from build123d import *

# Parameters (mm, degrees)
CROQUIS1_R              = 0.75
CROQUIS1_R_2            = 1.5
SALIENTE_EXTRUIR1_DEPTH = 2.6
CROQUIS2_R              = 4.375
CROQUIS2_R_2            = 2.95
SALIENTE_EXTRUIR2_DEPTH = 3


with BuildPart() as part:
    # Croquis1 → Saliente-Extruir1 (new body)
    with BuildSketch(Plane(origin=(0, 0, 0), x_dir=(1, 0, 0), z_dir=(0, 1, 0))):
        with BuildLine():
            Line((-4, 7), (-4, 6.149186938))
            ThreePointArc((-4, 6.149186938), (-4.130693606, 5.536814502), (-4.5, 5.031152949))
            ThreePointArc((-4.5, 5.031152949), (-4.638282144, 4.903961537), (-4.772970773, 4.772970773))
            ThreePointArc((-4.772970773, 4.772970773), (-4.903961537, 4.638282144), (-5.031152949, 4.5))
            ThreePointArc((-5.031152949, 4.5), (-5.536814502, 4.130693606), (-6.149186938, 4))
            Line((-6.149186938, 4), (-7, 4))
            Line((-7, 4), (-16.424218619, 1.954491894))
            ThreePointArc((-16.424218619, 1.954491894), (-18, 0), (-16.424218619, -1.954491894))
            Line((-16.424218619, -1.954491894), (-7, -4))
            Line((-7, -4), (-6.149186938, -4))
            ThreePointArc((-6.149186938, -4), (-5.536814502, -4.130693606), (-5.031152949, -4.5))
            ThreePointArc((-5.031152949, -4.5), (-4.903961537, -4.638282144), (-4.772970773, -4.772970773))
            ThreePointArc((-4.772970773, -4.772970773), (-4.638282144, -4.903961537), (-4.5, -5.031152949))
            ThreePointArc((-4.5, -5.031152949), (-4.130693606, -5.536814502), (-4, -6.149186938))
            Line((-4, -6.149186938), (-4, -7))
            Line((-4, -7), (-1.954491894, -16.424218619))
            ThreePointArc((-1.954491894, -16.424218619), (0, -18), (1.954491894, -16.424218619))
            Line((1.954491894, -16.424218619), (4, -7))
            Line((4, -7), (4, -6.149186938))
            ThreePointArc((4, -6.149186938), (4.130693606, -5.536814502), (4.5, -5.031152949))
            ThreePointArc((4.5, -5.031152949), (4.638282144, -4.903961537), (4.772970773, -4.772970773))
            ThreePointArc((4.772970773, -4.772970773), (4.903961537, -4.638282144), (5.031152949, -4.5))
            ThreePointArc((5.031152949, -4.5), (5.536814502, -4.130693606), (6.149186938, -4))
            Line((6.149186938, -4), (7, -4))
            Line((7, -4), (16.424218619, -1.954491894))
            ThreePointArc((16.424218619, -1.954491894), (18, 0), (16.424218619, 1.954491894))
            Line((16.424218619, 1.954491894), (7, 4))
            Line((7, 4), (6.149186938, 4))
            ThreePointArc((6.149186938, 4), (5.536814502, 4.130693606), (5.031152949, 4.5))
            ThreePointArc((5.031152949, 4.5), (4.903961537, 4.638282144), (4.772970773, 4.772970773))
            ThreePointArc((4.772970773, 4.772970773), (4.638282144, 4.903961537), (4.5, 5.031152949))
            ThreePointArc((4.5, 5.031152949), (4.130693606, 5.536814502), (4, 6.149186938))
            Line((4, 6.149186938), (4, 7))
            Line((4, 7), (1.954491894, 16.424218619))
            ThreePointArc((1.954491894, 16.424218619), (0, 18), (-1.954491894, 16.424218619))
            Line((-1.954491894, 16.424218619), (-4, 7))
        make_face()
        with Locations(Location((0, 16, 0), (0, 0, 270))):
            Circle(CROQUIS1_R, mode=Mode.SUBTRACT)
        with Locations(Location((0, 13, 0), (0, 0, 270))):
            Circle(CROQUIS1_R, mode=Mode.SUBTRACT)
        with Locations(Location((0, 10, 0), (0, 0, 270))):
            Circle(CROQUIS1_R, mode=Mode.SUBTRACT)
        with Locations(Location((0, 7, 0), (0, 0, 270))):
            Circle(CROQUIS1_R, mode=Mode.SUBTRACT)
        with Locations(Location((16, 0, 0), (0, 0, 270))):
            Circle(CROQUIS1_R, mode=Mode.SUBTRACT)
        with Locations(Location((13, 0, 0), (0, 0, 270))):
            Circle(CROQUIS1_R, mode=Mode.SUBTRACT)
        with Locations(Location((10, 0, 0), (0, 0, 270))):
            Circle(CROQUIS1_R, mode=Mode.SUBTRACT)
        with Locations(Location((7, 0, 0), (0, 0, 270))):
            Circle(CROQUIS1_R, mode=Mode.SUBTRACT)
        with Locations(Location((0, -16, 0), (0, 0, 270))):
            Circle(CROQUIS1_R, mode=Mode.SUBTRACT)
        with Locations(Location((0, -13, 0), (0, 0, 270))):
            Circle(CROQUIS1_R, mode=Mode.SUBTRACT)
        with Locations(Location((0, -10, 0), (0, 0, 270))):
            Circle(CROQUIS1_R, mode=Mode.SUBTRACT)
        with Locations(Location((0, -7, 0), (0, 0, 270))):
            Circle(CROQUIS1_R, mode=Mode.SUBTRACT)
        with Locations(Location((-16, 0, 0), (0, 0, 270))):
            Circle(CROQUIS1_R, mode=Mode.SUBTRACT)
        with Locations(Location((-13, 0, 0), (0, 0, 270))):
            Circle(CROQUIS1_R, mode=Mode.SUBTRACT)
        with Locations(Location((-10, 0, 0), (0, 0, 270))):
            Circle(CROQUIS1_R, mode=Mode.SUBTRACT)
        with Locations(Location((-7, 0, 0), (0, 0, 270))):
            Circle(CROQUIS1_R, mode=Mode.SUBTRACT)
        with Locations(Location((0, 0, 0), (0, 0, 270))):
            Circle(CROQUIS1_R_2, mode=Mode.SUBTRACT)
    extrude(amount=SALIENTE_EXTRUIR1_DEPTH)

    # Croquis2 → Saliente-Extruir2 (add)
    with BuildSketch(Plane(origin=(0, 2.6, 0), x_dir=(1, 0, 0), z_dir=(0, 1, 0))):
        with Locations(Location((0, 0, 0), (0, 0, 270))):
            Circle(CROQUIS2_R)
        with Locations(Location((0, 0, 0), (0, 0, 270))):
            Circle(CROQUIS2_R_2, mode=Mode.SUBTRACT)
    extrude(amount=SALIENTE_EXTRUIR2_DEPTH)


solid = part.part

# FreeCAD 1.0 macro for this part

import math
import FreeCAD as App
import Part
import Sketcher

V = App.Vector
Q = App.Units.Quantity

doc = App.newDocument("Part")
body = doc.addObject("PartDesign::Body", "Body")

# Sketch on XZ plane
sketch1 = body.newObject("Sketcher::SketchObject", "Sketch")
sketch1.AttachmentSupport = (doc.getObject("XZ_Plane"), [""])
sketch1.MapMode = "FlatFace"
sketch1.addGeometry(Part.LineSegment(V(-4, -7, 0), V(-4, -6.15, 0)), False)
sketch1.addGeometry(Part.ArcOfCircle(Part.Circle(V(-5.5, -6.15, 0), V(0, 0, 1), 1.5), math.radians(0), math.radians(48)), False)
sketch1.addGeometry(Part.ArcOfCircle(Part.Circle(V(0, 0, 0), V(0, 0, 1), 6.75), math.radians(-135), math.radians(-131.81)), False)
sketch1.addGeometry(Part.ArcOfCircle(Part.Circle(V(0, 0, 0), V(0, 0, 1), 6.75), math.radians(-138.19), math.radians(-135)), False)
sketch1.addGeometry(Part.ArcOfCircle(Part.Circle(V(-6.15, -5.5, 0), V(0, 0, 1), 1.5), math.radians(42), math.radians(90)), False)
sketch1.addGeometry(Part.LineSegment(V(-6.15, -4, 0), V(-7, -4, 0)), False)
sketch1.addGeometry(Part.LineSegment(V(-7, -4, 0), V(-16.42, -1.95, 0)), False)
sketch1.addGeometry(Part.ArcOfCircle(Part.Circle(V(-16, 0, 0), V(0, 0, 1), 2), math.radians(102), math.radians(258)), False)
sketch1.addGeometry(Part.LineSegment(V(-16.42, 1.95, 0), V(-7, 4, 0)), False)
sketch1.addGeometry(Part.LineSegment(V(-7, 4, 0), V(-6.15, 4, 0)), False)
sketch1.addGeometry(Part.ArcOfCircle(Part.Circle(V(-6.15, 5.5, 0), V(0, 0, 1), 1.5), math.radians(-90), math.radians(-42)), False)
sketch1.addGeometry(Part.ArcOfCircle(Part.Circle(V(0, 0, 0), V(0, 0, 1), 6.75), math.radians(135), math.radians(138.19)), False)
sketch1.addGeometry(Part.ArcOfCircle(Part.Circle(V(0, 0, 0), V(0, 0, 1), 6.75), math.radians(131.81), math.radians(135)), False)
sketch1.addGeometry(Part.ArcOfCircle(Part.Circle(V(-5.5, 6.15, 0), V(0, 0, 1), 1.5), math.radians(-48), math.radians(0)), False)
sketch1.addGeometry(Part.LineSegment(V(-4, 6.15, 0), V(-4, 7, 0)), False)
sketch1.addGeometry(Part.LineSegment(V(-4, 7, 0), V(-1.95, 16.42, 0)), False)
sketch1.addGeometry(Part.ArcOfCircle(Part.Circle(V(0, 16, 0), V(0, 0, 1), 2), math.radians(12), math.radians(168)), False)
sketch1.addGeometry(Part.LineSegment(V(1.95, 16.42, 0), V(4, 7, 0)), False)
sketch1.addGeometry(Part.LineSegment(V(4, 7, 0), V(4, 6.15, 0)), False)
sketch1.addGeometry(Part.ArcOfCircle(Part.Circle(V(5.5, 6.15, 0), V(0, 0, 1), 1.5), math.radians(180), math.radians(228)), False)
sketch1.addGeometry(Part.ArcOfCircle(Part.Circle(V(0, 0, 0), V(0, 0, 1), 6.75), math.radians(45), math.radians(48.19)), False)
sketch1.addGeometry(Part.ArcOfCircle(Part.Circle(V(0, 0, 0), V(0, 0, 1), 6.75), math.radians(41.81), math.radians(45)), False)
sketch1.addGeometry(Part.ArcOfCircle(Part.Circle(V(6.15, 5.5, 0), V(0, 0, 1), 1.5), math.radians(-138), math.radians(-90)), False)
sketch1.addGeometry(Part.LineSegment(V(6.15, 4, 0), V(7, 4, 0)), False)
sketch1.addGeometry(Part.LineSegment(V(7, 4, 0), V(16.42, 1.95, 0)), False)
sketch1.addGeometry(Part.ArcOfCircle(Part.Circle(V(16, 0, 0), V(0, 0, 1), 2), math.radians(-78), math.radians(78)), False)
sketch1.addGeometry(Part.LineSegment(V(16.42, -1.95, 0), V(7, -4, 0)), False)
sketch1.addGeometry(Part.LineSegment(V(7, -4, 0), V(6.15, -4, 0)), False)
sketch1.addGeometry(Part.ArcOfCircle(Part.Circle(V(6.15, -5.5, 0), V(0, 0, 1), 1.5), math.radians(90), math.radians(138)), False)
sketch1.addGeometry(Part.ArcOfCircle(Part.Circle(V(0, 0, 0), V(0, 0, 1), 6.75), math.radians(-45), math.radians(-41.81)), False)
sketch1.addGeometry(Part.ArcOfCircle(Part.Circle(V(0, 0, 0), V(0, 0, 1), 6.75), math.radians(-48.19), math.radians(-45)), False)
sketch1.addGeometry(Part.ArcOfCircle(Part.Circle(V(5.5, -6.15, 0), V(0, 0, 1), 1.5), math.radians(132), math.radians(180)), False)
sketch1.addGeometry(Part.LineSegment(V(4, -6.15, 0), V(4, -7, 0)), False)
sketch1.addGeometry(Part.LineSegment(V(4, -7, 0), V(1.95, -16.42, 0)), False)
sketch1.addGeometry(Part.ArcOfCircle(Part.Circle(V(0, -16, 0), V(0, 0, 1), 2), math.radians(-168), math.radians(-12)), False)
sketch1.addGeometry(Part.LineSegment(V(-1.95, -16.42, 0), V(-4, -7, 0)), False)
sketch1.addGeometry(Part.Circle(V(0, 16, 0), V(0, 0, 1), 0.75), False)
sketch1.addGeometry(Part.Circle(V(0, 13, 0), V(0, 0, 1), 0.75), False)
sketch1.addGeometry(Part.Circle(V(0, 10, 0), V(0, 0, 1), 0.75), False)
sketch1.addGeometry(Part.Circle(V(0, 7, 0), V(0, 0, 1), 0.75), False)
sketch1.addGeometry(Part.Circle(V(-16, 0, 0), V(0, 0, 1), 0.75), False)
sketch1.addGeometry(Part.Circle(V(-13, 0, 0), V(0, 0, 1), 0.75), False)
sketch1.addGeometry(Part.Circle(V(-10, 0, 0), V(0, 0, 1), 0.75), False)
sketch1.addGeometry(Part.Circle(V(-7, 0, 0), V(0, 0, 1), 0.75), False)
sketch1.addGeometry(Part.Circle(V(0, 0, 0), V(0, 0, 1), 1.5), False)
sketch1.addGeometry(Part.Circle(V(7, 0, 0), V(0, 0, 1), 0.75), False)
sketch1.addGeometry(Part.Circle(V(0, -7, 0), V(0, 0, 1), 0.75), False)
sketch1.addGeometry(Part.Circle(V(10, 0, 0), V(0, 0, 1), 0.75), False)
sketch1.addGeometry(Part.Circle(V(13, 0, 0), V(0, 0, 1), 0.75), False)
sketch1.addGeometry(Part.Circle(V(16, 0, 0), V(0, 0, 1), 0.75), False)
sketch1.addGeometry(Part.Circle(V(0, -10, 0), V(0, 0, 1), 0.75), False)
sketch1.addGeometry(Part.Circle(V(0, -13, 0), V(0, 0, 1), 0.75), False)
sketch1.addGeometry(Part.Circle(V(0, -16, 0), V(0, 0, 1), 0.75), False)
sketch1.addConstraint(Sketcher.Constraint("Tangent", 0, 2, 1, 1))
sketch1.addConstraint(Sketcher.Constraint("Tangent", 1, 2, 2, 2))
sketch1.addConstraint(Sketcher.Constraint("Tangent", 2, 1, 3, 2))
sketch1.addConstraint(Sketcher.Constraint("Tangent", 3, 1, 4, 1))
sketch1.addConstraint(Sketcher.Constraint("Tangent", 4, 2, 5, 1))
sketch1.addConstraint(Sketcher.Constraint("Coincident", 5, 2, 6, 1))
sketch1.addConstraint(Sketcher.Constraint("Tangent", 6, 2, 7, 2))
sketch1.addConstraint(Sketcher.Constraint("Tangent", 7, 1, 8, 1))
sketch1.addConstraint(Sketcher.Constraint("Coincident", 8, 2, 9, 1))
sketch1.addConstraint(Sketcher.Constraint("Tangent", 9, 2, 10, 1))
sketch1.addConstraint(Sketcher.Constraint("Tangent", 10, 2, 11, 2))
sketch1.addConstraint(Sketcher.Constraint("Tangent", 11, 1, 12, 2))
sketch1.addConstraint(Sketcher.Constraint("Tangent", 12, 1, 13, 1))
sketch1.addConstraint(Sketcher.Constraint("Tangent", 13, 2, 14, 1))
sketch1.addConstraint(Sketcher.Constraint("Coincident", 14, 2, 15, 1))
sketch1.addConstraint(Sketcher.Constraint("Tangent", 15, 2, 16, 2))
sketch1.addConstraint(Sketcher.Constraint("Tangent", 16, 1, 17, 1))
sketch1.addConstraint(Sketcher.Constraint("Coincident", 17, 2, 18, 1))
sketch1.addConstraint(Sketcher.Constraint("Tangent", 18, 2, 19, 1))
sketch1.addConstraint(Sketcher.Constraint("Tangent", 19, 2, 20, 2))
sketch1.addConstraint(Sketcher.Constraint("Tangent", 20, 1, 21, 2))
sketch1.addConstraint(Sketcher.Constraint("Tangent", 21, 1, 22, 1))
sketch1.addConstraint(Sketcher.Constraint("Tangent", 22, 2, 23, 1))
sketch1.addConstraint(Sketcher.Constraint("Coincident", 23, 2, 24, 1))
sketch1.addConstraint(Sketcher.Constraint("Tangent", 24, 2, 25, 2))
sketch1.addConstraint(Sketcher.Constraint("Tangent", 25, 1, 26, 1))
sketch1.addConstraint(Sketcher.Constraint("Coincident", 26, 2, 27, 1))
sketch1.addConstraint(Sketcher.Constraint("Tangent", 27, 2, 28, 1))
sketch1.addConstraint(Sketcher.Constraint("Tangent", 28, 2, 29, 2))
sketch1.addConstraint(Sketcher.Constraint("Tangent", 29, 1, 30, 2))
sketch1.addConstraint(Sketcher.Constraint("Tangent", 30, 1, 31, 1))
sketch1.addConstraint(Sketcher.Constraint("Tangent", 31, 2, 32, 1))
sketch1.addConstraint(Sketcher.Constraint("Coincident", 32, 2, 33, 1))
sketch1.addConstraint(Sketcher.Constraint("Tangent", 33, 2, 34, 2))
sketch1.addConstraint(Sketcher.Constraint("Tangent", 34, 1, 35, 1))
sketch1.addConstraint(Sketcher.Constraint("Coincident", 35, 2, 0, 1))
sketch1.addConstraint(Sketcher.Constraint("Vertical", 0))
sketch1.addConstraint(Sketcher.Constraint("Horizontal", 5))
sketch1.addConstraint(Sketcher.Constraint("Horizontal", 9))
sketch1.addConstraint(Sketcher.Constraint("Vertical", 14))
sketch1.addConstraint(Sketcher.Constraint("Vertical", 18))
sketch1.addConstraint(Sketcher.Constraint("Horizontal", 23))
sketch1.addConstraint(Sketcher.Constraint("Horizontal", 27))
sketch1.addConstraint(Sketcher.Constraint("Vertical", 32))
sketch1.addConstraint(Sketcher.Constraint("Coincident", 2, 3, -1, 1))
sketch1.addConstraint(Sketcher.Constraint("Coincident", 11, 3, -1, 1))
sketch1.addConstraint(Sketcher.Constraint("Coincident", 20, 3, -1, 1))
sketch1.addConstraint(Sketcher.Constraint("Coincident", 29, 3, -1, 1))
sketch1.addConstraint(Sketcher.Constraint("Coincident", 44, 3, -1, 1))
sketch1.addConstraint(Sketcher.Constraint("Coincident", 36, 3, 16, 3))
sketch1.addConstraint(Sketcher.Constraint("Coincident", 40, 3, 7, 3))
sketch1.addConstraint(Sketcher.Constraint("Coincident", 49, 3, 25, 3))
sketch1.addConstraint(Sketcher.Constraint("Coincident", 52, 3, 34, 3))
sketch1.addConstraint(Sketcher.Constraint("Equal", 2, 3))
sketch1.addConstraint(Sketcher.Constraint("Equal", 1, 4))
sketch1.addConstraint(Sketcher.Constraint("Equal", 4, 10))
sketch1.addConstraint(Sketcher.Constraint("Equal", 3, 11))
sketch1.addConstraint(Sketcher.Constraint("Equal", 11, 12))
sketch1.addConstraint(Sketcher.Constraint("Equal", 10, 13))
sketch1.addConstraint(Sketcher.Constraint("Equal", 7, 16))
sketch1.addConstraint(Sketcher.Constraint("Equal", 13, 19))
sketch1.addConstraint(Sketcher.Constraint("Equal", 12, 20))
sketch1.addConstraint(Sketcher.Constraint("Equal", 20, 21))
sketch1.addConstraint(Sketcher.Constraint("Equal", 19, 22))
sketch1.addConstraint(Sketcher.Constraint("Equal", 16, 25))
sketch1.addConstraint(Sketcher.Constraint("Equal", 22, 28))
sketch1.addConstraint(Sketcher.Constraint("Equal", 21, 29))
sketch1.addConstraint(Sketcher.Constraint("Equal", 29, 30))
sketch1.addConstraint(Sketcher.Constraint("Equal", 28, 31))
sketch1.addConstraint(Sketcher.Constraint("Equal", 25, 34))
sketch1.addConstraint(Sketcher.Constraint("Equal", 36, 37))
sketch1.addConstraint(Sketcher.Constraint("Equal", 37, 38))
sketch1.addConstraint(Sketcher.Constraint("Equal", 38, 39))
sketch1.addConstraint(Sketcher.Constraint("Equal", 39, 40))
sketch1.addConstraint(Sketcher.Constraint("Equal", 40, 41))
sketch1.addConstraint(Sketcher.Constraint("Equal", 41, 42))
sketch1.addConstraint(Sketcher.Constraint("Equal", 42, 43))
sketch1.addConstraint(Sketcher.Constraint("Equal", 31, 44))
sketch1.addConstraint(Sketcher.Constraint("Equal", 43, 45))
sketch1.addConstraint(Sketcher.Constraint("Equal", 45, 46))
sketch1.addConstraint(Sketcher.Constraint("Equal", 46, 47))
sketch1.addConstraint(Sketcher.Constraint("Equal", 47, 48))
sketch1.addConstraint(Sketcher.Constraint("Equal", 48, 49))
sketch1.addConstraint(Sketcher.Constraint("Equal", 49, 50))
sketch1.addConstraint(Sketcher.Constraint("Equal", 50, 51))
sketch1.addConstraint(Sketcher.Constraint("Equal", 51, 52))
sketch1.addConstraint(Sketcher.Constraint("Symmetric", 7, 3, 25, 3, -1, 1))
sketch1.addConstraint(Sketcher.Constraint("Symmetric", 16, 3, 34, 3, -1, 1))
sketch1.addConstraint(Sketcher.Constraint("Symmetric", 43, 3, 45, 3, -1, 1))
sketch1.addConstraint(Sketcher.Constraint("Symmetric", 39, 3, 46, 3, -1, 1))
sketch1.addConstraint(Sketcher.Constraint("Symmetric", 42, 3, 47, 3, -1, 1))
sketch1.addConstraint(Sketcher.Constraint("Symmetric", 41, 3, 48, 3, -1, 1))
sketch1.addConstraint(Sketcher.Constraint("Symmetric", 38, 3, 50, 3, -1, 1))
sketch1.addConstraint(Sketcher.Constraint("Symmetric", 37, 3, 51, 3, -1, 1))
sketch1.addConstraint(Sketcher.Constraint("Symmetric", 5, 2, 23, 2, -1, 1))
sketch1.addConstraint(Sketcher.Constraint("Symmetric", 8, 2, 26, 2, -1, 1))
sketch1.addConstraint(Sketcher.Constraint("Symmetric", 14, 2, 32, 2, -1, 1))
sketch1.addConstraint(Sketcher.Constraint("Symmetric", 17, 2, 35, 2, -1, 1))
sketch1.addConstraint(Sketcher.Constraint("Symmetric", 15, 2, 16, 1, -2))
sketch1.addConstraint(Sketcher.Constraint("Symmetric", 8, 2, 23, 2, -2))
sketch1.addConstraint(Sketcher.Constraint("PointOnObject", 7, 3, -1))
sketch1.addConstraint(Sketcher.Constraint("PointOnObject", 37, 3, -2))
sketch1.addConstraint(Sketcher.Constraint("PointOnObject", 38, 3, -2))
sketch1.addConstraint(Sketcher.Constraint("PointOnObject", 39, 3, -2))
sketch1.addConstraint(Sketcher.Constraint("PointOnObject", 41, 3, -1))
sketch1.addConstraint(Sketcher.Constraint("PointOnObject", 42, 3, -1))
sketch1.addConstraint(Sketcher.Constraint("PointOnObject", 43, 3, -1))
sketch1.addConstraint(Sketcher.Constraint("Perpendicular", 6, 15))
sketch1.addConstraint(Sketcher.Constraint("Horizontal", 13, 3, 19, 3))
sketch1.addConstraint(Sketcher.Constraint("Horizontal", 39, 3, 14, 2))
sketch1.addConstraint(Sketcher.Constraint("Horizontal", 11, 1, 20, 1))
sketch1.addConstraint(Sketcher.Constraint("Horizontal", 2, 1, 29, 1))
sketch1.addConstraint(Sketcher.Constraint("Vertical", 43, 3, 5, 2))
sketch1.addConstraint(Sketcher.Constraint("Vertical", 2, 1, 11, 1))
sketch1.addConstraint(Sketcher.Constraint("Equal", 27, 0))
sketch1.addConstraint(Sketcher.Constraint("Equal", 8, 15))
sketch1.addConstraint(Sketcher.Constraint("Diameter", 44, Q("3 mm")))
sketch1.addConstraint(Sketcher.Constraint("Radius", 7, Q("2 mm")))
sketch1.addConstraint(Sketcher.Constraint("Diameter", 36, Q("1.5 mm")))
sketch1.addConstraint(Sketcher.Constraint("Radius", 2, Q("6.749999 mm")))
sketch1.addConstraint(Sketcher.Constraint("DistanceX", 7, 3, -1, 1, Q("16 mm")))
sketch1.addConstraint(Sketcher.Constraint("DistanceY", -1, 1, 37, 3, Q("13 mm")))
sketch1.addConstraint(Sketcher.Constraint("DistanceY", -1, 1, 38, 3, Q("10 mm")))
sketch1.addConstraint(Sketcher.Constraint("DistanceY", -1, 1, 39, 3, Q("7 mm")))
sketch1.addConstraint(Sketcher.Constraint("DistanceX", 41, 3, -1, 1, Q("13 mm")))
sketch1.addConstraint(Sketcher.Constraint("DistanceX", 42, 3, -1, 1, Q("10 mm")))
sketch1.addConstraint(Sketcher.Constraint("DistanceX", 0, 2, -1, 1, Q("4 mm")))
sketch1.addConstraint(Sketcher.Constraint("DistanceX", 2, 1, -1, 1, Q("4.772971 mm")))
pad1 = body.newObject("PartDesign::Pad", "Pad")
pad1.Profile = sketch1
pad1.Length = 2.6
pad1.Reversed = True

# Sketch on XZ plane
sketch2 = body.newObject("Sketcher::SketchObject", "Sketch001")
sketch2.AttachmentSupport = (doc.getObject("XZ_Plane"), [""])
sketch2.MapMode = "FlatFace"
sketch2.AttachmentOffset = App.Placement(V(0, 0, -2.6), App.Rotation())
sketch2.addGeometry(Part.Circle(V(0, 0, 0), V(0, 0, 1), 4.4), False)
sketch2.addGeometry(Part.Circle(V(0, 0, 0), V(0, 0, 1), 3), False)
sketch2.addConstraint(Sketcher.Constraint("Coincident", 0, 3, -1, 1))
sketch2.addConstraint(Sketcher.Constraint("Coincident", 1, 3, -1, 1))
sketch2.addConstraint(Sketcher.Constraint("Diameter", 1, Q("5.9 mm")))
sketch2.addConstraint(Sketcher.Constraint("Diameter", 0, Q("8.75 mm")))
pad2 = body.newObject("PartDesign::Pad", "Pad001")
pad2.Profile = sketch2
pad2.Length = 3
pad2.Reversed = True

doc.recompute()
